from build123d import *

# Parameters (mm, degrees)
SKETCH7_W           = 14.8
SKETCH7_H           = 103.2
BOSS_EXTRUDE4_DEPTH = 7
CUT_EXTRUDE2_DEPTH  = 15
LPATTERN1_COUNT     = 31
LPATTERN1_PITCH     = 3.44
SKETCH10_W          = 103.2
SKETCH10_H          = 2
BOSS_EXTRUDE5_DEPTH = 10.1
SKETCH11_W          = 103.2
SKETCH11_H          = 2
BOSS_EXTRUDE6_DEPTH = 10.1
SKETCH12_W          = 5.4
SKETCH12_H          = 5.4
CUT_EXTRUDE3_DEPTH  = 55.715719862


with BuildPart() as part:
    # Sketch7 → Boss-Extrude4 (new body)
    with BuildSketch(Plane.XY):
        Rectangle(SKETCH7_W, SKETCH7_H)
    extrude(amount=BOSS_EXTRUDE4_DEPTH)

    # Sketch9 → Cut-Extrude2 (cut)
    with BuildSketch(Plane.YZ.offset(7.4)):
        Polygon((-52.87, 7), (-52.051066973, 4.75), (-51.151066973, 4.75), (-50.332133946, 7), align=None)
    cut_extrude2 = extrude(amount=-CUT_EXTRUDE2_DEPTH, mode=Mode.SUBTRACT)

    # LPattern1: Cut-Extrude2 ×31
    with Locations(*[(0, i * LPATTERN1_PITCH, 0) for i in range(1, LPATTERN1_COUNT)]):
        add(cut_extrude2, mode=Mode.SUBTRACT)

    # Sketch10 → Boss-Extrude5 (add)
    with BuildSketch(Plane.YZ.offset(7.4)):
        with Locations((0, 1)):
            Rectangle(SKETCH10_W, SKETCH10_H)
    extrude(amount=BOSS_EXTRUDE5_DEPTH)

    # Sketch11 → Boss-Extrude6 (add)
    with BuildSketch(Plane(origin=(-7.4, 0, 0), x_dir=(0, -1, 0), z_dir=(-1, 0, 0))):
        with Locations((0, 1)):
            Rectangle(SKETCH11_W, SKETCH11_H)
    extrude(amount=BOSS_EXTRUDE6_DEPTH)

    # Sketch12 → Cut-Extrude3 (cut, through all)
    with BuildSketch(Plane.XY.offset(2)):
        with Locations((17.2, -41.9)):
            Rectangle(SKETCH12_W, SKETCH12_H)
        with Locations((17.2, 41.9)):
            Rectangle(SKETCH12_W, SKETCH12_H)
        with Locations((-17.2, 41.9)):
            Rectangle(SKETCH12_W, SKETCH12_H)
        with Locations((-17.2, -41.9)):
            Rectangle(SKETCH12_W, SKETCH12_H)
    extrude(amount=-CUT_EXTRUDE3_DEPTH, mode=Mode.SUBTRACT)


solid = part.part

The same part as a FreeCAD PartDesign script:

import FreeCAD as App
import Part
import Sketcher
from FreeCAD import Vector
Q = App.Units.Quantity

doc = App.newDocument("Part")
body = doc.addObject("PartDesign::Body", "Body")

sketch1 = doc.addObject("Sketcher::SketchObject", "Sketch")
body.addObject(sketch1)
sketch1.AttachmentSupport = (doc.XY_Plane, [""])
sketch1.MapMode = "FlatFace"
sketch1.addGeometry(Part.LineSegment(Vector(-7, 52, 0), Vector(-7, -52, 0)), False)
sketch1.addGeometry(Part.LineSegment(Vector(-7, -52, 0), Vector(7, -52, 0)), False)
sketch1.addGeometry(Part.LineSegment(Vector(7, -52, 0), Vector(7, 52, 0)), False)
sketch1.addGeometry(Part.LineSegment(Vector(7, 52, 0), Vector(-7, 52, 0)), False)
sketch1.addConstraint(Sketcher.Constraint("Coincident", 0, 2, 1, 1))
sketch1.addConstraint(Sketcher.Constraint("Coincident", 1, 2, 2, 1))
sketch1.addConstraint(Sketcher.Constraint("Coincident", 2, 2, 3, 1))
sketch1.addConstraint(Sketcher.Constraint("Coincident", 3, 2, 0, 1))
sketch1.addConstraint(Sketcher.Constraint("Vertical", 0))
sketch1.addConstraint(Sketcher.Constraint("Horizontal", 1))
sketch1.addConstraint(Sketcher.Constraint("Vertical", 2))
sketch1.addConstraint(Sketcher.Constraint("Horizontal", 3))
sketch1.addConstraint(Sketcher.Constraint("Symmetric", 0, 2, 2, 2, -1, 1))
sketch1.addConstraint(Sketcher.Constraint("DistanceX", 1, 1, 1, 2, 14.8))
sketch1.addConstraint(Sketcher.Constraint("DistanceY", 0, 2, 0, 1, 103.2))
pad1 = doc.addObject("PartDesign::Pad", "Pad")
body.addObject(pad1)
pad1.Profile = sketch1
pad1.Length = 7

sketch2 = doc.addObject("Sketcher::SketchObject", "Sketch001")
body.addObject(sketch2)
sketch2.AttachmentSupport = (doc.YZ_Plane, [""])
sketch2.MapMode = "FlatFace"
sketch2.AttachmentOffset = App.Placement(Vector(0, 0, 7.4), App.Rotation())
sketch2.addGeometry(Part.LineSegment(Vector(-52.9, 7, 0), Vector(-52.1, 4.8, 0)), False)
sketch2.addGeometry(Part.LineSegment(Vector(-52.1, 4.8, 0), Vector(-51.2, 4.8, 0)), False)
sketch2.addGeometry(Part.LineSegment(Vector(-51.2, 4.8, 0), Vector(-50.3, 7, 0)), False)
sketch2.addGeometry(Part.LineSegment(Vector(-50.3, 7, 0), Vector(-52.9, 7, 0)), False)
sketch2.addConstraint(Sketcher.Constraint("Coincident", 0, 2, 1, 1))
sketch2.addConstraint(Sketcher.Constraint("Coincident", 1, 2, 2, 1))
sketch2.addConstraint(Sketcher.Constraint("Coincident", 2, 2, 3, 1))
sketch2.addConstraint(Sketcher.Constraint("Coincident", 3, 2, 0, 1))
sketch2.addConstraint(Sketcher.Constraint("Horizontal", 1))
sketch2.addConstraint(Sketcher.Constraint("Horizontal", 3))
sketch2.addConstraint(Sketcher.Constraint("Equal", 0, 2))
sketch2.addConstraint(Sketcher.Constraint("Angle", 0, Q("-70 deg")))
sketch2.addConstraint(Sketcher.Constraint("DistanceX", 1, 1, 1, 2, 0.9))
sketch2.addConstraint(Sketcher.Constraint("DistanceY", -1, 1, 2, 2, 7.0))
sketch2.addConstraint(Sketcher.Constraint("DistanceY", -1, 1, 0, 2, 4.75))
sketch2.addConstraint(Sketcher.Constraint("DistanceX", 3, 2, -1, 1, 52.87))
pocket1 = doc.addObject("PartDesign::Pocket", "Pocket")
body.addObject(pocket1)
pocket1.Profile = sketch2
pocket1.Length = 15
doc.recompute()

linearpattern = doc.addObject("PartDesign::LinearPattern", "LinearPattern")
body.addObject(linearpattern)
linearpattern.Originals = [pocket1]
linearpattern.Direction = (doc.Y_Axis, [""])
linearpattern.Mode = "offset"
linearpattern.Offset = 3.44
linearpattern.Occurrences = 31
body.Tip = linearpattern

sketch3 = doc.addObject("Sketcher::SketchObject", "Sketch002")
body.addObject(sketch3)
sketch3.AttachmentSupport = (doc.YZ_Plane, [""])
sketch3.MapMode = "FlatFace"
sketch3.AttachmentOffset = App.Placement(Vector(0, 0, 7.4), App.Rotation())
sketch3.addGeometry(Part.LineSegment(Vector(-51.6, 2, 0), Vector(-51.6, 0, 0)), False)
sketch3.addGeometry(Part.LineSegment(Vector(-51.6, 0, 0), Vector(51.6, 0, 0)), False)
sketch3.addGeometry(Part.LineSegment(Vector(51.6, 0, 0), Vector(51.6, 2, 0)), False)
sketch3.addGeometry(Part.LineSegment(Vector(51.6, 2, 0), Vector(-51.6, 2, 0)), False)
sketch3.addConstraint(Sketcher.Constraint("Coincident", 0, 2, 1, 1))
sketch3.addConstraint(Sketcher.Constraint("Coincident", 1, 2, 2, 1))
sketch3.addConstraint(Sketcher.Constraint("Coincident", 2, 2, 3, 1))
sketch3.addConstraint(Sketcher.Constraint("Coincident", 3, 2, 0, 1))
sketch3.addConstraint(Sketcher.Constraint("Vertical", 0))
sketch3.addConstraint(Sketcher.Constraint("Horizontal", 1))
sketch3.addConstraint(Sketcher.Constraint("Vertical", 2))
sketch3.addConstraint(Sketcher.Constraint("Horizontal", 3))
sketch3.addConstraint(Sketcher.Constraint("Symmetric", 0, 2, 1, 2, -1, 1))
sketch3.addConstraint(Sketcher.Constraint("DistanceY", 0, 2, 0, 1, 2.0))
sketch3.addConstraint(Sketcher.Constraint("DistanceX", 1, 1, 1, 2, 103.2))
pad2 = doc.addObject("PartDesign::Pad", "Pad001")
body.addObject(pad2)
pad2.Profile = sketch3
pad2.Length = 10.1

sketch4 = doc.addObject("Sketcher::SketchObject", "Sketch003")
body.addObject(sketch4)
sketch4.AttachmentSupport = (doc.YZ_Plane, [""])
sketch4.MapMode = "FlatFace"
sketch4.AttachmentOffset = App.Placement(Vector(0, 0, -7.4), App.Rotation())
sketch4.addGeometry(Part.LineSegment(Vector(51.6, 2, 0), Vector(51.6, 0, 0)), False)
sketch4.addGeometry(Part.LineSegment(Vector(51.6, 0, 0), Vector(-51.6, 0, 0)), False)
sketch4.addGeometry(Part.LineSegment(Vector(-51.6, 0, 0), Vector(-51.6, 2, 0)), False)
sketch4.addGeometry(Part.LineSegment(Vector(-51.6, 2, 0), Vector(51.6, 2, 0)), False)
sketch4.addConstraint(Sketcher.Constraint("Coincident", 0, 2, 1, 1))
sketch4.addConstraint(Sketcher.Constraint("Coincident", 1, 2, 2, 1))
sketch4.addConstraint(Sketcher.Constraint("Coincident", 2, 2, 3, 1))
sketch4.addConstraint(Sketcher.Constraint("Coincident", 3, 2, 0, 1))
sketch4.addConstraint(Sketcher.Constraint("Vertical", 0))
sketch4.addConstraint(Sketcher.Constraint("Horizontal", 1))
sketch4.addConstraint(Sketcher.Constraint("Vertical", 2))
sketch4.addConstraint(Sketcher.Constraint("Horizontal", 3))
sketch4.addConstraint(Sketcher.Constraint("Symmetric", 0, 2, 1, 2, -1, 1))
sketch4.addConstraint(Sketcher.Constraint("DistanceY", 0, 2, 0, 1, 2.0))
sketch4.addConstraint(Sketcher.Constraint("DistanceX", 1, 2, 1, 1, 103.2))
pad3 = doc.addObject("PartDesign::Pad", "Pad002")
body.addObject(pad3)
pad3.Profile = sketch4
pad3.Length = 10.1
pad3.Reversed = True

sketch5 = doc.addObject("Sketcher::SketchObject", "Sketch004")
body.addObject(sketch5)
sketch5.AttachmentSupport = (doc.XY_Plane, [""])
sketch5.MapMode = "FlatFace"
sketch5.AttachmentOffset = App.Placement(Vector(0, 0, 2), App.Rotation())
sketch5.addGeometry(Part.LineSegment(Vector(14, -39, 0), Vector(14, -45, 0)), False)
sketch5.addGeometry(Part.LineSegment(Vector(14, -45, 0), Vector(20, -45, 0)), False)
sketch5.addGeometry(Part.LineSegment(Vector(20, -45, 0), Vector(20, -39, 0)), False)
sketch5.addGeometry(Part.LineSegment(Vector(20, -39, 0), Vector(14, -39, 0)), False)
sketch5.addGeometry(Part.LineSegment(Vector(14, 45, 0), Vector(14, 39, 0)), False)
sketch5.addGeometry(Part.LineSegment(Vector(14, 39, 0), Vector(20, 39, 0)), False)
sketch5.addGeometry(Part.LineSegment(Vector(20, 39, 0), Vector(20, 45, 0)), False)
sketch5.addGeometry(Part.LineSegment(Vector(20, 45, 0), Vector(14, 45, 0)), False)
sketch5.addGeometry(Part.LineSegment(Vector(-20, 45, 0), Vector(-20, 39, 0)), False)
sketch5.addGeometry(Part.LineSegment(Vector(-20, 39, 0), Vector(-14, 39, 0)), False)
sketch5.addGeometry(Part.LineSegment(Vector(-14, 39, 0), Vector(-14, 45, 0)), False)
sketch5.addGeometry(Part.LineSegment(Vector(-14, 45, 0), Vector(-20, 45, 0)), False)
sketch5.addGeometry(Part.LineSegment(Vector(-20, -39, 0), Vector(-20, -45, 0)), False)
sketch5.addGeometry(Part.LineSegment(Vector(-20, -45, 0), Vector(-14, -45, 0)), False)
sketch5.addGeometry(Part.LineSegment(Vector(-14, -45, 0), Vector(-14, -39, 0)), False)
sketch5.addGeometry(Part.LineSegment(Vector(-14, -39, 0), Vector(-20, -39, 0)), False)
sketch5.addConstraint(Sketcher.Constraint("Coincident", 0, 2, 1, 1))
sketch5.addConstraint(Sketcher.Constraint("Coincident", 1, 2, 2, 1))
sketch5.addConstraint(Sketcher.Constraint("Coincident", 2, 2, 3, 1))
sketch5.addConstraint(Sketcher.Constraint("Coincident", 3, 2, 0, 1))
sketch5.addConstraint(Sketcher.Constraint("Coincident", 4, 2, 5, 1))
sketch5.addConstraint(Sketcher.Constraint("Coincident", 5, 2, 6, 1))
sketch5.addConstraint(Sketcher.Constraint("Coincident", 6, 2, 7, 1))
sketch5.addConstraint(Sketcher.Constraint("Coincident", 7, 2, 4, 1))
sketch5.addConstraint(Sketcher.Constraint("Coincident", 8, 2, 9, 1))
sketch5.addConstraint(Sketcher.Constraint("Coincident", 9, 2, 10, 1))
sketch5.addConstraint(Sketcher.Constraint("Coincident", 10, 2, 11, 1))
sketch5.addConstraint(Sketcher.Constraint("Coincident", 11, 2, 8, 1))
sketch5.addConstraint(Sketcher.Constraint("Coincident", 12, 2, 13, 1))
sketch5.addConstraint(Sketcher.Constraint("Coincident", 13, 2, 14, 1))
sketch5.addConstraint(Sketcher.Constraint("Coincident", 14, 2, 15, 1))
sketch5.addConstraint(Sketcher.Constraint("Coincident", 15, 2, 12, 1))
sketch5.addConstraint(Sketcher.Constraint("Vertical", 0))
sketch5.addConstraint(Sketcher.Constraint("Horizontal", 1))
sketch5.addConstraint(Sketcher.Constraint("Vertical", 2))
sketch5.addConstraint(Sketcher.Constraint("Horizontal", 3))
sketch5.addConstraint(Sketcher.Constraint("Vertical", 4))
sketch5.addConstraint(Sketcher.Constraint("Horizontal", 5))
sketch5.addConstraint(Sketcher.Constraint("Vertical", 6))
sketch5.addConstraint(Sketcher.Constraint("Horizontal", 7))
sketch5.addConstraint(Sketcher.Constraint("Vertical", 8))
sketch5.addConstraint(Sketcher.Constraint("Horizontal", 9))
sketch5.addConstraint(Sketcher.Constraint("Vertical", 10))
sketch5.addConstraint(Sketcher.Constraint("Horizontal", 11))
sketch5.addConstraint(Sketcher.Constraint("Vertical", 12))
sketch5.addConstraint(Sketcher.Constraint("Horizontal", 13))
sketch5.addConstraint(Sketcher.Constraint("Vertical", 14))
sketch5.addConstraint(Sketcher.Constraint("Horizontal", 15))
sketch5.addConstraint(Sketcher.Constraint("Symmetric", 2, 2, 8, 2, -1, 1))
sketch5.addConstraint(Sketcher.Constraint("Symmetric", 0, 2, 10, 2, -1, 1))
sketch5.addConstraint(Sketcher.Constraint("Symmetric", 6, 2, 12, 2, -1, 1))
sketch5.addConstraint(Sketcher.Constraint("Symmetric", 4, 2, 14, 2, -1, 1))
sketch5.addConstraint(Sketcher.Constraint("Symmetric", 5, 2, 8, 2, -2))
sketch5.addConstraint(Sketcher.Constraint("Symmetric", 7, 2, 10, 2, -2))
sketch5.addConstraint(Sketcher.Constraint("Equal", 15, 0))
sketch5.addConstraint(Sketcher.Constraint("DistanceX", 1, 1, 1, 2, 5.4))
sketch5.addConstraint(Sketcher.Constraint("DistanceX", 9, 2, 4, 2, 29.0))
sketch5.addConstraint(Sketcher.Constraint("DistanceY", 0, 2, -1, 1, 44.6))
pocket2 = doc.addObject("PartDesign::Pocket", "Pocket001")
body.addObject(pocket2)
pocket2.Profile = sketch5
pocket2.Type = "ThroughAll"

doc.recompute()
